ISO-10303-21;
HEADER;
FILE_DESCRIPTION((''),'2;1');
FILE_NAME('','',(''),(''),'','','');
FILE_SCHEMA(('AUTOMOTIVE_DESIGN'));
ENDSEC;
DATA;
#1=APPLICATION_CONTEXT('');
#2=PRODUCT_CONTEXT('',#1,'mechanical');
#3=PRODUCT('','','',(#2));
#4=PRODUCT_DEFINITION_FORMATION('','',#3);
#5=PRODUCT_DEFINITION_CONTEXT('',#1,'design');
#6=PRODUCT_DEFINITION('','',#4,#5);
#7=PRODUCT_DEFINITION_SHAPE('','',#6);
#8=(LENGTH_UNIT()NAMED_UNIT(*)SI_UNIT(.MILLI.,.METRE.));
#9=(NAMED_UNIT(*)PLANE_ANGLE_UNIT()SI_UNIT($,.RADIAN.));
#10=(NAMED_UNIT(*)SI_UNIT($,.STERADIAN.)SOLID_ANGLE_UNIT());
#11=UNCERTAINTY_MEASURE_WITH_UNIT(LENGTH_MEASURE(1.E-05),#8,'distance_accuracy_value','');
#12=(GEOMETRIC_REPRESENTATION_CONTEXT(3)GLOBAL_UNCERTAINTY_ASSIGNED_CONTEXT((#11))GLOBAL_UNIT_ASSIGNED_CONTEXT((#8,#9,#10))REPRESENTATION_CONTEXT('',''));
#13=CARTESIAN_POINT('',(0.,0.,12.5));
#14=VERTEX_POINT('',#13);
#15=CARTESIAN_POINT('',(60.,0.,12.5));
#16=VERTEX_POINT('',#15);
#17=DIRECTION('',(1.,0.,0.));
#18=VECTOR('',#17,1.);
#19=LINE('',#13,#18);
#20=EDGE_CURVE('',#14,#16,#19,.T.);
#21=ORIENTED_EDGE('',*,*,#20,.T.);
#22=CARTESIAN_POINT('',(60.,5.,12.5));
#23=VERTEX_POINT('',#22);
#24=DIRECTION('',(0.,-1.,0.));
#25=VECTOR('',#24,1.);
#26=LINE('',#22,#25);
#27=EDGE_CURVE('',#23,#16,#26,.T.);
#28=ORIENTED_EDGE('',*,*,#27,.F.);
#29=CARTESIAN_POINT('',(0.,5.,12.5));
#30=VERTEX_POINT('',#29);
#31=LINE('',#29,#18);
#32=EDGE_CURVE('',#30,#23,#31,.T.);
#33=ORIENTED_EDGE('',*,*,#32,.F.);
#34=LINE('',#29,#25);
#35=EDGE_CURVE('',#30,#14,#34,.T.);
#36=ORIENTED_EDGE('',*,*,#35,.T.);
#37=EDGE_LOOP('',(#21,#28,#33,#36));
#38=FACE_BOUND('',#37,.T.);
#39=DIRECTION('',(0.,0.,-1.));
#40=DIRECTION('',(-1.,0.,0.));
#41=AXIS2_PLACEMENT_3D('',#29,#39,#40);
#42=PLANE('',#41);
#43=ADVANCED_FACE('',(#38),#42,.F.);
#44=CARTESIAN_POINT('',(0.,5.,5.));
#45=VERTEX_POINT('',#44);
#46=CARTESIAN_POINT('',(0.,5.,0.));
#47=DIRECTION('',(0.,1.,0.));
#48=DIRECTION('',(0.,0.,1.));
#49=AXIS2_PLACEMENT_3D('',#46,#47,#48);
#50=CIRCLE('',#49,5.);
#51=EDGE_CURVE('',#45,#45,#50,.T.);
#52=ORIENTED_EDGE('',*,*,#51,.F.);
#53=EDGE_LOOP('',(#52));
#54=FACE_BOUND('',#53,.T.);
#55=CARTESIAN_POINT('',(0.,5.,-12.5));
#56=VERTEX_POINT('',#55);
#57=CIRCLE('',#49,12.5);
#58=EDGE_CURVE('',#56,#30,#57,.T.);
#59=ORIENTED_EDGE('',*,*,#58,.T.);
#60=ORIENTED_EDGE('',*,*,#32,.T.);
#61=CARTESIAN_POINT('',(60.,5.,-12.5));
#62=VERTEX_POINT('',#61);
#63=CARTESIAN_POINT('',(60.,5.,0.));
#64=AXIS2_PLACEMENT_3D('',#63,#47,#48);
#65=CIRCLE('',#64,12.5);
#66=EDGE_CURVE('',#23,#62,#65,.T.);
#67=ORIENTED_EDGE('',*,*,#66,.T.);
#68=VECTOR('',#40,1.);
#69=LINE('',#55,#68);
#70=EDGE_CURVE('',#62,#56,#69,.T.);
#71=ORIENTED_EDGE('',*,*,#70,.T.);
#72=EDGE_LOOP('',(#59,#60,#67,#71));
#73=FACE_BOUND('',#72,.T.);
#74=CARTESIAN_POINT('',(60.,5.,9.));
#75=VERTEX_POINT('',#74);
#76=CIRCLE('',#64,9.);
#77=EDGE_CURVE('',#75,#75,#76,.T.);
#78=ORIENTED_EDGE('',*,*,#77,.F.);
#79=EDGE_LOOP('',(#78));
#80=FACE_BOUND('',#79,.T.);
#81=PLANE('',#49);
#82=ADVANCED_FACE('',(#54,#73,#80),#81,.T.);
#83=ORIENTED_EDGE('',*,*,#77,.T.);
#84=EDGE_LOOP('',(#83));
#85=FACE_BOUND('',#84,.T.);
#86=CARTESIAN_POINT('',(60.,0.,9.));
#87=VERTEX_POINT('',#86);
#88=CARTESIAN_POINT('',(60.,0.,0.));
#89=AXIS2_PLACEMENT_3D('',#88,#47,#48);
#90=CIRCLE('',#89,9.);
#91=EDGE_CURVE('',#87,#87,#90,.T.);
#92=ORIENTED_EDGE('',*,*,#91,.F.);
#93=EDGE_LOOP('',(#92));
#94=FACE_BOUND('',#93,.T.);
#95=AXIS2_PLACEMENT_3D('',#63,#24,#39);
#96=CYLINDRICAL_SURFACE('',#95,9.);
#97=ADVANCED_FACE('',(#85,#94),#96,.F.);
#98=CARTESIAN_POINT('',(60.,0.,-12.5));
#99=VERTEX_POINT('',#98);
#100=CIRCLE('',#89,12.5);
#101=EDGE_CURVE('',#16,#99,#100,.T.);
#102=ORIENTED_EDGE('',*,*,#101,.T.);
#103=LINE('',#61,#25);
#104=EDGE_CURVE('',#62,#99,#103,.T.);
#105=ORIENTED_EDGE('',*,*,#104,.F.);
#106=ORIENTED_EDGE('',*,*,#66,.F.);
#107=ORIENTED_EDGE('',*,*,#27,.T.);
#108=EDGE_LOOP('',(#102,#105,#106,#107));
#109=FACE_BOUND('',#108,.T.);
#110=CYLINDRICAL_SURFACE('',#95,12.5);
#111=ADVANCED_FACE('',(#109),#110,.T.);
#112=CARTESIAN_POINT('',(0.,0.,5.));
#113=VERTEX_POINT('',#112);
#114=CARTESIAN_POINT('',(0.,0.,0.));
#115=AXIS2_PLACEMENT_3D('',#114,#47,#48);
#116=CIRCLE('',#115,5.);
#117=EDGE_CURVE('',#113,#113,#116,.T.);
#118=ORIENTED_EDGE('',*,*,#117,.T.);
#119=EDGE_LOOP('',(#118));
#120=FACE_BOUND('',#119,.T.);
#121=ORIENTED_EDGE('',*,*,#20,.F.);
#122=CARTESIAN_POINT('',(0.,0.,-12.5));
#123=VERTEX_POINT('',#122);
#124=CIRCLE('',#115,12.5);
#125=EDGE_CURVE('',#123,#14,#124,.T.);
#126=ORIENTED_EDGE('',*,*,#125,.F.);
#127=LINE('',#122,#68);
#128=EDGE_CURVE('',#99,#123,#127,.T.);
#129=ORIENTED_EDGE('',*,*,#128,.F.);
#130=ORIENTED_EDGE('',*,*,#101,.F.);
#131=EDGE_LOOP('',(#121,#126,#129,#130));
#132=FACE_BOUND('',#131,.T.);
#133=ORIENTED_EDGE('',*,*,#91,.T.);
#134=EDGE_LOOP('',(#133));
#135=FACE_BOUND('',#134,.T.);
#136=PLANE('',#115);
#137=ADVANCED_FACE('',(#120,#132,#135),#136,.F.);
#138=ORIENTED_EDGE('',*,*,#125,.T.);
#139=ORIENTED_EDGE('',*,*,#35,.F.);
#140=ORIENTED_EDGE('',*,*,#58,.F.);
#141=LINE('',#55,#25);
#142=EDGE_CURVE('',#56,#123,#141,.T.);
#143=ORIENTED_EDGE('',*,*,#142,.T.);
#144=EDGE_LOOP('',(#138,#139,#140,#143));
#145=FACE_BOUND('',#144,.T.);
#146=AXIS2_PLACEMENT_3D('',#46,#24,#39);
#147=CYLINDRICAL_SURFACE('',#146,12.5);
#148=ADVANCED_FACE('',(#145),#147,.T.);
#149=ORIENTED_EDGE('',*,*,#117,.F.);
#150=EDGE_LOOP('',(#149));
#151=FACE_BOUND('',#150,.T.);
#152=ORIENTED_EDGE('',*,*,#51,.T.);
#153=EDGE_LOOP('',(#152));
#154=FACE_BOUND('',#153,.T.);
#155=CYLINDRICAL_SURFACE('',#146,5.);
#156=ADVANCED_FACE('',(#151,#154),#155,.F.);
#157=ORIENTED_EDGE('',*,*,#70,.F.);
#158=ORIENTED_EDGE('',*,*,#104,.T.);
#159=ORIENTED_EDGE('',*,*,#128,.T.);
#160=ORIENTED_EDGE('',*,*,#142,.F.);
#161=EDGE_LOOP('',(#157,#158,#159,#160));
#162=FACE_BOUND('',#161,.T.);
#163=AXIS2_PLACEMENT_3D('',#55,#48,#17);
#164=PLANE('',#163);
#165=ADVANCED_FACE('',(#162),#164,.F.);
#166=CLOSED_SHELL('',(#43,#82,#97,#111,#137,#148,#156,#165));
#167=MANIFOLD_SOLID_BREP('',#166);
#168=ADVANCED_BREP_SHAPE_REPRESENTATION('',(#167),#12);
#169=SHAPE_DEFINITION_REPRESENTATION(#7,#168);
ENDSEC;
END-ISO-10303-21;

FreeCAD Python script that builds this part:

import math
import FreeCAD as App
import Part
import Sketcher

V = App.Vector

doc = App.newDocument("Part")
body = doc.addObject("PartDesign::Body", "Body")

sketch1 = body.newObject("Sketcher::SketchObject", "Sketch")
sketch1.AttachmentSupport = (doc.getObject("XZ_Plane"), [""])
sketch1.MapMode = "FlatFace"
sketch1.addGeometry(Part.LineSegment(V(60, -12, 0), V(0, -12, 0)), False)
sketch1.addGeometry(Part.ArcOfCircle(Part.Circle(V(0, 0, 0), V(0, 0, 1), 12), math.radians(90), math.radians(270)), False)
sketch1.addGeometry(Part.LineSegment(V(0, 12, 0), V(60, 12, 0)), False)
sketch1.addGeometry(Part.ArcOfCircle(Part.Circle(V(60, 0, 0), V(0, 0, 1), 12), math.radians(-90), math.radians(90)), False)
sketch1.addGeometry(Part.Circle(V(60, 0, 0), V(0, 0, 1), 9), False)
sketch1.addGeometry(Part.Circle(V(0, 0, 0), V(0, 0, 1), 5), False)
sketch1.addConstraint(Sketcher.Constraint("Tangent", 0, 2, 1, 2))
sketch1.addConstraint(Sketcher.Constraint("Tangent", 1, 1, 2, 1))
sketch1.addConstraint(Sketcher.Constraint("Tangent", 2, 2, 3, 2))
sketch1.addConstraint(Sketcher.Constraint("Tangent", 3, 1, 0, 1))
sketch1.addConstraint(Sketcher.Constraint("Horizontal", 0))
sketch1.addConstraint(Sketcher.Constraint("Horizontal", 2))
sketch1.addConstraint(Sketcher.Constraint("Coincident", 1, 3, -1, 1))
sketch1.addConstraint(Sketcher.Constraint("Coincident", 5, 3, -1, 1))
sketch1.addConstraint(Sketcher.Constraint("Coincident", 4, 3, 3, 3))
sketch1.addConstraint(Sketcher.Constraint("Diameter", 4, 18.0))
sketch1.addConstraint(Sketcher.Constraint("Diameter", 5, 10.0))
sketch1.addConstraint(Sketcher.Constraint("Radius", 1, 12.5))
sketch1.addConstraint(Sketcher.Constraint("DistanceX", 0, 2, 0, 1, 60.0))
pad1 = body.newObject("PartDesign::Pad", "Pad")
pad1.Profile = sketch1
pad1.Length = 5
pad1.Reversed = True

doc.recompute()
